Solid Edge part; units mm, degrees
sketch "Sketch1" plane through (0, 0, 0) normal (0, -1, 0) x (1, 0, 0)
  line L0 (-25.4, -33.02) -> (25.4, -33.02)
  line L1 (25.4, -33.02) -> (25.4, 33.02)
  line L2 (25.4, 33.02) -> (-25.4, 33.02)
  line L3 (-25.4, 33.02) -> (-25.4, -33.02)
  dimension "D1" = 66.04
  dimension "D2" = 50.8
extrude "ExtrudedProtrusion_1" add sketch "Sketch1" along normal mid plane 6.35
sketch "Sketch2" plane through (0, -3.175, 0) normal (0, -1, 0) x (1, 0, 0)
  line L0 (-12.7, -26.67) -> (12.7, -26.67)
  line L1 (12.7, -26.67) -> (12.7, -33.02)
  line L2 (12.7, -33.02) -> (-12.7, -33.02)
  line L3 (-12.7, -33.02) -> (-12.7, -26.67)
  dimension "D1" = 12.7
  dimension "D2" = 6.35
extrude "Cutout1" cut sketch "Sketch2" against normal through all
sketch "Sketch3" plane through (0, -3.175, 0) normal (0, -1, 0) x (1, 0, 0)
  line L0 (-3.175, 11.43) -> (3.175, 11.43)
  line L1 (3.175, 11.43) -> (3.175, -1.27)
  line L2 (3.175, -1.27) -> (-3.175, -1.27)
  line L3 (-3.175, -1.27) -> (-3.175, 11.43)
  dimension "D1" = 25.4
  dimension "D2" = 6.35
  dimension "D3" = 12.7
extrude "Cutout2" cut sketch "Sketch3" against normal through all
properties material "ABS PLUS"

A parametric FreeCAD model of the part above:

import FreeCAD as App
import Part
import Sketcher
Q = App.Units.Quantity

doc = App.newDocument("Part")
body = doc.addObject("PartDesign::Body", "Body")

sketch1 = body.newObject("Sketcher::SketchObject", "Sketch")
sketch1.AttachmentSupport = (doc.getObject("XZ_Plane"), [""])
sketch1.MapMode = "FlatFace"
sketch1.addGeometry(Part.LineSegment(App.Vector(-25.4, 33.02, 0), App.Vector(-25.4, -33.02, 0)), False)
sketch1.addGeometry(Part.LineSegment(App.Vector(-25.4, -33.02, 0), App.Vector(25.4, -33.02, 0)), False)
sketch1.addGeometry(Part.LineSegment(App.Vector(25.4, -33.02, 0), App.Vector(25.4, 33.02, 0)), False)
sketch1.addGeometry(Part.LineSegment(App.Vector(25.4, 33.02, 0), App.Vector(-25.4, 33.02, 0)), False)
sketch1.addConstraint(Sketcher.Constraint("Coincident", 0, 2, 1, 1))
sketch1.addConstraint(Sketcher.Constraint("Coincident", 1, 2, 2, 1))
sketch1.addConstraint(Sketcher.Constraint("Coincident", 2, 2, 3, 1))
sketch1.addConstraint(Sketcher.Constraint("Coincident", 3, 2, 0, 1))
sketch1.addConstraint(Sketcher.Constraint("Vertical", 0))
sketch1.addConstraint(Sketcher.Constraint("Horizontal", 1))
sketch1.addConstraint(Sketcher.Constraint("Vertical", 2))
sketch1.addConstraint(Sketcher.Constraint("Horizontal", 3))
sketch1.addConstraint(Sketcher.Constraint("Symmetric", 0, 2, 2, 2, -1, 1))
sketch1.addConstraint(Sketcher.Constraint("DistanceX", 0, 2, -1, 1, Q("1 in")))
sketch1.addConstraint(Sketcher.Constraint("DistanceY", 0, 2, 0, 1, Q("2.6 in")))
pad1 = body.newObject("PartDesign::Pad", "Pad")
pad1.Profile = sketch1
pad1.Length = Q("0.25 in")
pad1.Midplane = True

sketch2 = body.newObject("Sketcher::SketchObject", "Sketch001")
sketch2.AttachmentSupport = (doc.getObject("XZ_Plane"), [""])
sketch2.MapMode = "FlatFace"
sketch2.AttachmentOffset = App.Placement(App.Vector(0, 0, 0.125 * 25.4), App.Rotation())
sketch2.addGeometry(Part.LineSegment(App.Vector(12.7, -26.67, 0), App.Vector(-12.7, -26.67, 0)), False)
sketch2.addGeometry(Part.LineSegment(App.Vector(-12.7, -26.67, 0), App.Vector(-12.7, -33.02, 0)), False)
sketch2.addGeometry(Part.LineSegment(App.Vector(-12.7, -33.02, 0), App.Vector(12.7, -33.02, 0)), False)
sketch2.addGeometry(Part.LineSegment(App.Vector(12.7, -33.02, 0), App.Vector(12.7, -26.67, 0)), False)
sketch2.addConstraint(Sketcher.Constraint("Coincident", 0, 2, 1, 1))
sketch2.addConstraint(Sketcher.Constraint("Coincident", 1, 2, 2, 1))
sketch2.addConstraint(Sketcher.Constraint("Coincident", 2, 2, 3, 1))
sketch2.addConstraint(Sketcher.Constraint("Coincident", 3, 2, 0, 1))
sketch2.addConstraint(Sketcher.Constraint("Horizontal", 0))
sketch2.addConstraint(Sketcher.Constraint("Vertical", 1))
sketch2.addConstraint(Sketcher.Constraint("Horizontal", 2))
sketch2.addConstraint(Sketcher.Constraint("Vertical", 3))
sketch2.addConstraint(Sketcher.Constraint("DistanceX", 0, 2, -1, 1, Q("0.5 in")))
sketch2.addConstraint(Sketcher.Constraint("DistanceX", -1, 1, 2, 2, Q("0.5 in")))
sketch2.addConstraint(Sketcher.Constraint("DistanceY", 1, 2, 1, 1, Q("0.25 in")))
sketch2.addConstraint(Sketcher.Constraint("DistanceY", 1, 2, -1, 1, Q("1.3 in")))
pocket1 = body.newObject("PartDesign::Pocket", "Pocket")
pocket1.Profile = sketch2
pocket1.Type = "ThroughAll"

sketch3 = body.newObject("Sketcher::SketchObject", "Sketch002")
sketch3.AttachmentSupport = (doc.getObject("XZ_Plane"), [""])
sketch3.MapMode = "FlatFace"
sketch3.AttachmentOffset = App.Placement(App.Vector(0, 0, 0.125 * 25.4), App.Rotation())
sketch3.addGeometry(Part.LineSegment(App.Vector(3.175, 11.43, 0), App.Vector(-3.175, 11.43, 0)), False)
sketch3.addGeometry(Part.LineSegment(App.Vector(-3.175, 11.43, 0), App.Vector(-3.175, -1.27, 0)), False)
sketch3.addGeometry(Part.LineSegment(App.Vector(-3.175, -1.27, 0), App.Vector(3.175, -1.27, 0)), False)
sketch3.addGeometry(Part.LineSegment(App.Vector(3.175, -1.27, 0), App.Vector(3.175, 11.43, 0)), False)
sketch3.addConstraint(Sketcher.Constraint("Coincident", 0, 2, 1, 1))
sketch3.addConstraint(Sketcher.Constraint("Coincident", 1, 2, 2, 1))
sketch3.addConstraint(Sketcher.Constraint("Coincident", 2, 2, 3, 1))
sketch3.addConstraint(Sketcher.Constraint("Coincident", 3, 2, 0, 1))
sketch3.addConstraint(Sketcher.Constraint("Horizontal", 0))
sketch3.addConstraint(Sketcher.Constraint("Vertical", 1))
sketch3.addConstraint(Sketcher.Constraint("Horizontal", 2))
sketch3.addConstraint(Sketcher.Constraint("Vertical", 3))
sketch3.addConstraint(Sketcher.Constraint("DistanceY", 1, 2, 1, 1, Q("0.5 in")))
sketch3.addConstraint(Sketcher.Constraint("DistanceX", 0, 2, -1, 1, Q("0.125 in")))
sketch3.addConstraint(Sketcher.Constraint("DistanceX", -1, 1, 2, 2, Q("0.125 in")))
sketch3.addConstraint(Sketcher.Constraint("DistanceY", -1, 1, 0, 2, Q("0.45 in")))
pocket2 = body.newObject("PartDesign::Pocket", "Pocket001")
pocket2.Profile = sketch3
pocket2.Type = "ThroughAll"

doc.recompute()
